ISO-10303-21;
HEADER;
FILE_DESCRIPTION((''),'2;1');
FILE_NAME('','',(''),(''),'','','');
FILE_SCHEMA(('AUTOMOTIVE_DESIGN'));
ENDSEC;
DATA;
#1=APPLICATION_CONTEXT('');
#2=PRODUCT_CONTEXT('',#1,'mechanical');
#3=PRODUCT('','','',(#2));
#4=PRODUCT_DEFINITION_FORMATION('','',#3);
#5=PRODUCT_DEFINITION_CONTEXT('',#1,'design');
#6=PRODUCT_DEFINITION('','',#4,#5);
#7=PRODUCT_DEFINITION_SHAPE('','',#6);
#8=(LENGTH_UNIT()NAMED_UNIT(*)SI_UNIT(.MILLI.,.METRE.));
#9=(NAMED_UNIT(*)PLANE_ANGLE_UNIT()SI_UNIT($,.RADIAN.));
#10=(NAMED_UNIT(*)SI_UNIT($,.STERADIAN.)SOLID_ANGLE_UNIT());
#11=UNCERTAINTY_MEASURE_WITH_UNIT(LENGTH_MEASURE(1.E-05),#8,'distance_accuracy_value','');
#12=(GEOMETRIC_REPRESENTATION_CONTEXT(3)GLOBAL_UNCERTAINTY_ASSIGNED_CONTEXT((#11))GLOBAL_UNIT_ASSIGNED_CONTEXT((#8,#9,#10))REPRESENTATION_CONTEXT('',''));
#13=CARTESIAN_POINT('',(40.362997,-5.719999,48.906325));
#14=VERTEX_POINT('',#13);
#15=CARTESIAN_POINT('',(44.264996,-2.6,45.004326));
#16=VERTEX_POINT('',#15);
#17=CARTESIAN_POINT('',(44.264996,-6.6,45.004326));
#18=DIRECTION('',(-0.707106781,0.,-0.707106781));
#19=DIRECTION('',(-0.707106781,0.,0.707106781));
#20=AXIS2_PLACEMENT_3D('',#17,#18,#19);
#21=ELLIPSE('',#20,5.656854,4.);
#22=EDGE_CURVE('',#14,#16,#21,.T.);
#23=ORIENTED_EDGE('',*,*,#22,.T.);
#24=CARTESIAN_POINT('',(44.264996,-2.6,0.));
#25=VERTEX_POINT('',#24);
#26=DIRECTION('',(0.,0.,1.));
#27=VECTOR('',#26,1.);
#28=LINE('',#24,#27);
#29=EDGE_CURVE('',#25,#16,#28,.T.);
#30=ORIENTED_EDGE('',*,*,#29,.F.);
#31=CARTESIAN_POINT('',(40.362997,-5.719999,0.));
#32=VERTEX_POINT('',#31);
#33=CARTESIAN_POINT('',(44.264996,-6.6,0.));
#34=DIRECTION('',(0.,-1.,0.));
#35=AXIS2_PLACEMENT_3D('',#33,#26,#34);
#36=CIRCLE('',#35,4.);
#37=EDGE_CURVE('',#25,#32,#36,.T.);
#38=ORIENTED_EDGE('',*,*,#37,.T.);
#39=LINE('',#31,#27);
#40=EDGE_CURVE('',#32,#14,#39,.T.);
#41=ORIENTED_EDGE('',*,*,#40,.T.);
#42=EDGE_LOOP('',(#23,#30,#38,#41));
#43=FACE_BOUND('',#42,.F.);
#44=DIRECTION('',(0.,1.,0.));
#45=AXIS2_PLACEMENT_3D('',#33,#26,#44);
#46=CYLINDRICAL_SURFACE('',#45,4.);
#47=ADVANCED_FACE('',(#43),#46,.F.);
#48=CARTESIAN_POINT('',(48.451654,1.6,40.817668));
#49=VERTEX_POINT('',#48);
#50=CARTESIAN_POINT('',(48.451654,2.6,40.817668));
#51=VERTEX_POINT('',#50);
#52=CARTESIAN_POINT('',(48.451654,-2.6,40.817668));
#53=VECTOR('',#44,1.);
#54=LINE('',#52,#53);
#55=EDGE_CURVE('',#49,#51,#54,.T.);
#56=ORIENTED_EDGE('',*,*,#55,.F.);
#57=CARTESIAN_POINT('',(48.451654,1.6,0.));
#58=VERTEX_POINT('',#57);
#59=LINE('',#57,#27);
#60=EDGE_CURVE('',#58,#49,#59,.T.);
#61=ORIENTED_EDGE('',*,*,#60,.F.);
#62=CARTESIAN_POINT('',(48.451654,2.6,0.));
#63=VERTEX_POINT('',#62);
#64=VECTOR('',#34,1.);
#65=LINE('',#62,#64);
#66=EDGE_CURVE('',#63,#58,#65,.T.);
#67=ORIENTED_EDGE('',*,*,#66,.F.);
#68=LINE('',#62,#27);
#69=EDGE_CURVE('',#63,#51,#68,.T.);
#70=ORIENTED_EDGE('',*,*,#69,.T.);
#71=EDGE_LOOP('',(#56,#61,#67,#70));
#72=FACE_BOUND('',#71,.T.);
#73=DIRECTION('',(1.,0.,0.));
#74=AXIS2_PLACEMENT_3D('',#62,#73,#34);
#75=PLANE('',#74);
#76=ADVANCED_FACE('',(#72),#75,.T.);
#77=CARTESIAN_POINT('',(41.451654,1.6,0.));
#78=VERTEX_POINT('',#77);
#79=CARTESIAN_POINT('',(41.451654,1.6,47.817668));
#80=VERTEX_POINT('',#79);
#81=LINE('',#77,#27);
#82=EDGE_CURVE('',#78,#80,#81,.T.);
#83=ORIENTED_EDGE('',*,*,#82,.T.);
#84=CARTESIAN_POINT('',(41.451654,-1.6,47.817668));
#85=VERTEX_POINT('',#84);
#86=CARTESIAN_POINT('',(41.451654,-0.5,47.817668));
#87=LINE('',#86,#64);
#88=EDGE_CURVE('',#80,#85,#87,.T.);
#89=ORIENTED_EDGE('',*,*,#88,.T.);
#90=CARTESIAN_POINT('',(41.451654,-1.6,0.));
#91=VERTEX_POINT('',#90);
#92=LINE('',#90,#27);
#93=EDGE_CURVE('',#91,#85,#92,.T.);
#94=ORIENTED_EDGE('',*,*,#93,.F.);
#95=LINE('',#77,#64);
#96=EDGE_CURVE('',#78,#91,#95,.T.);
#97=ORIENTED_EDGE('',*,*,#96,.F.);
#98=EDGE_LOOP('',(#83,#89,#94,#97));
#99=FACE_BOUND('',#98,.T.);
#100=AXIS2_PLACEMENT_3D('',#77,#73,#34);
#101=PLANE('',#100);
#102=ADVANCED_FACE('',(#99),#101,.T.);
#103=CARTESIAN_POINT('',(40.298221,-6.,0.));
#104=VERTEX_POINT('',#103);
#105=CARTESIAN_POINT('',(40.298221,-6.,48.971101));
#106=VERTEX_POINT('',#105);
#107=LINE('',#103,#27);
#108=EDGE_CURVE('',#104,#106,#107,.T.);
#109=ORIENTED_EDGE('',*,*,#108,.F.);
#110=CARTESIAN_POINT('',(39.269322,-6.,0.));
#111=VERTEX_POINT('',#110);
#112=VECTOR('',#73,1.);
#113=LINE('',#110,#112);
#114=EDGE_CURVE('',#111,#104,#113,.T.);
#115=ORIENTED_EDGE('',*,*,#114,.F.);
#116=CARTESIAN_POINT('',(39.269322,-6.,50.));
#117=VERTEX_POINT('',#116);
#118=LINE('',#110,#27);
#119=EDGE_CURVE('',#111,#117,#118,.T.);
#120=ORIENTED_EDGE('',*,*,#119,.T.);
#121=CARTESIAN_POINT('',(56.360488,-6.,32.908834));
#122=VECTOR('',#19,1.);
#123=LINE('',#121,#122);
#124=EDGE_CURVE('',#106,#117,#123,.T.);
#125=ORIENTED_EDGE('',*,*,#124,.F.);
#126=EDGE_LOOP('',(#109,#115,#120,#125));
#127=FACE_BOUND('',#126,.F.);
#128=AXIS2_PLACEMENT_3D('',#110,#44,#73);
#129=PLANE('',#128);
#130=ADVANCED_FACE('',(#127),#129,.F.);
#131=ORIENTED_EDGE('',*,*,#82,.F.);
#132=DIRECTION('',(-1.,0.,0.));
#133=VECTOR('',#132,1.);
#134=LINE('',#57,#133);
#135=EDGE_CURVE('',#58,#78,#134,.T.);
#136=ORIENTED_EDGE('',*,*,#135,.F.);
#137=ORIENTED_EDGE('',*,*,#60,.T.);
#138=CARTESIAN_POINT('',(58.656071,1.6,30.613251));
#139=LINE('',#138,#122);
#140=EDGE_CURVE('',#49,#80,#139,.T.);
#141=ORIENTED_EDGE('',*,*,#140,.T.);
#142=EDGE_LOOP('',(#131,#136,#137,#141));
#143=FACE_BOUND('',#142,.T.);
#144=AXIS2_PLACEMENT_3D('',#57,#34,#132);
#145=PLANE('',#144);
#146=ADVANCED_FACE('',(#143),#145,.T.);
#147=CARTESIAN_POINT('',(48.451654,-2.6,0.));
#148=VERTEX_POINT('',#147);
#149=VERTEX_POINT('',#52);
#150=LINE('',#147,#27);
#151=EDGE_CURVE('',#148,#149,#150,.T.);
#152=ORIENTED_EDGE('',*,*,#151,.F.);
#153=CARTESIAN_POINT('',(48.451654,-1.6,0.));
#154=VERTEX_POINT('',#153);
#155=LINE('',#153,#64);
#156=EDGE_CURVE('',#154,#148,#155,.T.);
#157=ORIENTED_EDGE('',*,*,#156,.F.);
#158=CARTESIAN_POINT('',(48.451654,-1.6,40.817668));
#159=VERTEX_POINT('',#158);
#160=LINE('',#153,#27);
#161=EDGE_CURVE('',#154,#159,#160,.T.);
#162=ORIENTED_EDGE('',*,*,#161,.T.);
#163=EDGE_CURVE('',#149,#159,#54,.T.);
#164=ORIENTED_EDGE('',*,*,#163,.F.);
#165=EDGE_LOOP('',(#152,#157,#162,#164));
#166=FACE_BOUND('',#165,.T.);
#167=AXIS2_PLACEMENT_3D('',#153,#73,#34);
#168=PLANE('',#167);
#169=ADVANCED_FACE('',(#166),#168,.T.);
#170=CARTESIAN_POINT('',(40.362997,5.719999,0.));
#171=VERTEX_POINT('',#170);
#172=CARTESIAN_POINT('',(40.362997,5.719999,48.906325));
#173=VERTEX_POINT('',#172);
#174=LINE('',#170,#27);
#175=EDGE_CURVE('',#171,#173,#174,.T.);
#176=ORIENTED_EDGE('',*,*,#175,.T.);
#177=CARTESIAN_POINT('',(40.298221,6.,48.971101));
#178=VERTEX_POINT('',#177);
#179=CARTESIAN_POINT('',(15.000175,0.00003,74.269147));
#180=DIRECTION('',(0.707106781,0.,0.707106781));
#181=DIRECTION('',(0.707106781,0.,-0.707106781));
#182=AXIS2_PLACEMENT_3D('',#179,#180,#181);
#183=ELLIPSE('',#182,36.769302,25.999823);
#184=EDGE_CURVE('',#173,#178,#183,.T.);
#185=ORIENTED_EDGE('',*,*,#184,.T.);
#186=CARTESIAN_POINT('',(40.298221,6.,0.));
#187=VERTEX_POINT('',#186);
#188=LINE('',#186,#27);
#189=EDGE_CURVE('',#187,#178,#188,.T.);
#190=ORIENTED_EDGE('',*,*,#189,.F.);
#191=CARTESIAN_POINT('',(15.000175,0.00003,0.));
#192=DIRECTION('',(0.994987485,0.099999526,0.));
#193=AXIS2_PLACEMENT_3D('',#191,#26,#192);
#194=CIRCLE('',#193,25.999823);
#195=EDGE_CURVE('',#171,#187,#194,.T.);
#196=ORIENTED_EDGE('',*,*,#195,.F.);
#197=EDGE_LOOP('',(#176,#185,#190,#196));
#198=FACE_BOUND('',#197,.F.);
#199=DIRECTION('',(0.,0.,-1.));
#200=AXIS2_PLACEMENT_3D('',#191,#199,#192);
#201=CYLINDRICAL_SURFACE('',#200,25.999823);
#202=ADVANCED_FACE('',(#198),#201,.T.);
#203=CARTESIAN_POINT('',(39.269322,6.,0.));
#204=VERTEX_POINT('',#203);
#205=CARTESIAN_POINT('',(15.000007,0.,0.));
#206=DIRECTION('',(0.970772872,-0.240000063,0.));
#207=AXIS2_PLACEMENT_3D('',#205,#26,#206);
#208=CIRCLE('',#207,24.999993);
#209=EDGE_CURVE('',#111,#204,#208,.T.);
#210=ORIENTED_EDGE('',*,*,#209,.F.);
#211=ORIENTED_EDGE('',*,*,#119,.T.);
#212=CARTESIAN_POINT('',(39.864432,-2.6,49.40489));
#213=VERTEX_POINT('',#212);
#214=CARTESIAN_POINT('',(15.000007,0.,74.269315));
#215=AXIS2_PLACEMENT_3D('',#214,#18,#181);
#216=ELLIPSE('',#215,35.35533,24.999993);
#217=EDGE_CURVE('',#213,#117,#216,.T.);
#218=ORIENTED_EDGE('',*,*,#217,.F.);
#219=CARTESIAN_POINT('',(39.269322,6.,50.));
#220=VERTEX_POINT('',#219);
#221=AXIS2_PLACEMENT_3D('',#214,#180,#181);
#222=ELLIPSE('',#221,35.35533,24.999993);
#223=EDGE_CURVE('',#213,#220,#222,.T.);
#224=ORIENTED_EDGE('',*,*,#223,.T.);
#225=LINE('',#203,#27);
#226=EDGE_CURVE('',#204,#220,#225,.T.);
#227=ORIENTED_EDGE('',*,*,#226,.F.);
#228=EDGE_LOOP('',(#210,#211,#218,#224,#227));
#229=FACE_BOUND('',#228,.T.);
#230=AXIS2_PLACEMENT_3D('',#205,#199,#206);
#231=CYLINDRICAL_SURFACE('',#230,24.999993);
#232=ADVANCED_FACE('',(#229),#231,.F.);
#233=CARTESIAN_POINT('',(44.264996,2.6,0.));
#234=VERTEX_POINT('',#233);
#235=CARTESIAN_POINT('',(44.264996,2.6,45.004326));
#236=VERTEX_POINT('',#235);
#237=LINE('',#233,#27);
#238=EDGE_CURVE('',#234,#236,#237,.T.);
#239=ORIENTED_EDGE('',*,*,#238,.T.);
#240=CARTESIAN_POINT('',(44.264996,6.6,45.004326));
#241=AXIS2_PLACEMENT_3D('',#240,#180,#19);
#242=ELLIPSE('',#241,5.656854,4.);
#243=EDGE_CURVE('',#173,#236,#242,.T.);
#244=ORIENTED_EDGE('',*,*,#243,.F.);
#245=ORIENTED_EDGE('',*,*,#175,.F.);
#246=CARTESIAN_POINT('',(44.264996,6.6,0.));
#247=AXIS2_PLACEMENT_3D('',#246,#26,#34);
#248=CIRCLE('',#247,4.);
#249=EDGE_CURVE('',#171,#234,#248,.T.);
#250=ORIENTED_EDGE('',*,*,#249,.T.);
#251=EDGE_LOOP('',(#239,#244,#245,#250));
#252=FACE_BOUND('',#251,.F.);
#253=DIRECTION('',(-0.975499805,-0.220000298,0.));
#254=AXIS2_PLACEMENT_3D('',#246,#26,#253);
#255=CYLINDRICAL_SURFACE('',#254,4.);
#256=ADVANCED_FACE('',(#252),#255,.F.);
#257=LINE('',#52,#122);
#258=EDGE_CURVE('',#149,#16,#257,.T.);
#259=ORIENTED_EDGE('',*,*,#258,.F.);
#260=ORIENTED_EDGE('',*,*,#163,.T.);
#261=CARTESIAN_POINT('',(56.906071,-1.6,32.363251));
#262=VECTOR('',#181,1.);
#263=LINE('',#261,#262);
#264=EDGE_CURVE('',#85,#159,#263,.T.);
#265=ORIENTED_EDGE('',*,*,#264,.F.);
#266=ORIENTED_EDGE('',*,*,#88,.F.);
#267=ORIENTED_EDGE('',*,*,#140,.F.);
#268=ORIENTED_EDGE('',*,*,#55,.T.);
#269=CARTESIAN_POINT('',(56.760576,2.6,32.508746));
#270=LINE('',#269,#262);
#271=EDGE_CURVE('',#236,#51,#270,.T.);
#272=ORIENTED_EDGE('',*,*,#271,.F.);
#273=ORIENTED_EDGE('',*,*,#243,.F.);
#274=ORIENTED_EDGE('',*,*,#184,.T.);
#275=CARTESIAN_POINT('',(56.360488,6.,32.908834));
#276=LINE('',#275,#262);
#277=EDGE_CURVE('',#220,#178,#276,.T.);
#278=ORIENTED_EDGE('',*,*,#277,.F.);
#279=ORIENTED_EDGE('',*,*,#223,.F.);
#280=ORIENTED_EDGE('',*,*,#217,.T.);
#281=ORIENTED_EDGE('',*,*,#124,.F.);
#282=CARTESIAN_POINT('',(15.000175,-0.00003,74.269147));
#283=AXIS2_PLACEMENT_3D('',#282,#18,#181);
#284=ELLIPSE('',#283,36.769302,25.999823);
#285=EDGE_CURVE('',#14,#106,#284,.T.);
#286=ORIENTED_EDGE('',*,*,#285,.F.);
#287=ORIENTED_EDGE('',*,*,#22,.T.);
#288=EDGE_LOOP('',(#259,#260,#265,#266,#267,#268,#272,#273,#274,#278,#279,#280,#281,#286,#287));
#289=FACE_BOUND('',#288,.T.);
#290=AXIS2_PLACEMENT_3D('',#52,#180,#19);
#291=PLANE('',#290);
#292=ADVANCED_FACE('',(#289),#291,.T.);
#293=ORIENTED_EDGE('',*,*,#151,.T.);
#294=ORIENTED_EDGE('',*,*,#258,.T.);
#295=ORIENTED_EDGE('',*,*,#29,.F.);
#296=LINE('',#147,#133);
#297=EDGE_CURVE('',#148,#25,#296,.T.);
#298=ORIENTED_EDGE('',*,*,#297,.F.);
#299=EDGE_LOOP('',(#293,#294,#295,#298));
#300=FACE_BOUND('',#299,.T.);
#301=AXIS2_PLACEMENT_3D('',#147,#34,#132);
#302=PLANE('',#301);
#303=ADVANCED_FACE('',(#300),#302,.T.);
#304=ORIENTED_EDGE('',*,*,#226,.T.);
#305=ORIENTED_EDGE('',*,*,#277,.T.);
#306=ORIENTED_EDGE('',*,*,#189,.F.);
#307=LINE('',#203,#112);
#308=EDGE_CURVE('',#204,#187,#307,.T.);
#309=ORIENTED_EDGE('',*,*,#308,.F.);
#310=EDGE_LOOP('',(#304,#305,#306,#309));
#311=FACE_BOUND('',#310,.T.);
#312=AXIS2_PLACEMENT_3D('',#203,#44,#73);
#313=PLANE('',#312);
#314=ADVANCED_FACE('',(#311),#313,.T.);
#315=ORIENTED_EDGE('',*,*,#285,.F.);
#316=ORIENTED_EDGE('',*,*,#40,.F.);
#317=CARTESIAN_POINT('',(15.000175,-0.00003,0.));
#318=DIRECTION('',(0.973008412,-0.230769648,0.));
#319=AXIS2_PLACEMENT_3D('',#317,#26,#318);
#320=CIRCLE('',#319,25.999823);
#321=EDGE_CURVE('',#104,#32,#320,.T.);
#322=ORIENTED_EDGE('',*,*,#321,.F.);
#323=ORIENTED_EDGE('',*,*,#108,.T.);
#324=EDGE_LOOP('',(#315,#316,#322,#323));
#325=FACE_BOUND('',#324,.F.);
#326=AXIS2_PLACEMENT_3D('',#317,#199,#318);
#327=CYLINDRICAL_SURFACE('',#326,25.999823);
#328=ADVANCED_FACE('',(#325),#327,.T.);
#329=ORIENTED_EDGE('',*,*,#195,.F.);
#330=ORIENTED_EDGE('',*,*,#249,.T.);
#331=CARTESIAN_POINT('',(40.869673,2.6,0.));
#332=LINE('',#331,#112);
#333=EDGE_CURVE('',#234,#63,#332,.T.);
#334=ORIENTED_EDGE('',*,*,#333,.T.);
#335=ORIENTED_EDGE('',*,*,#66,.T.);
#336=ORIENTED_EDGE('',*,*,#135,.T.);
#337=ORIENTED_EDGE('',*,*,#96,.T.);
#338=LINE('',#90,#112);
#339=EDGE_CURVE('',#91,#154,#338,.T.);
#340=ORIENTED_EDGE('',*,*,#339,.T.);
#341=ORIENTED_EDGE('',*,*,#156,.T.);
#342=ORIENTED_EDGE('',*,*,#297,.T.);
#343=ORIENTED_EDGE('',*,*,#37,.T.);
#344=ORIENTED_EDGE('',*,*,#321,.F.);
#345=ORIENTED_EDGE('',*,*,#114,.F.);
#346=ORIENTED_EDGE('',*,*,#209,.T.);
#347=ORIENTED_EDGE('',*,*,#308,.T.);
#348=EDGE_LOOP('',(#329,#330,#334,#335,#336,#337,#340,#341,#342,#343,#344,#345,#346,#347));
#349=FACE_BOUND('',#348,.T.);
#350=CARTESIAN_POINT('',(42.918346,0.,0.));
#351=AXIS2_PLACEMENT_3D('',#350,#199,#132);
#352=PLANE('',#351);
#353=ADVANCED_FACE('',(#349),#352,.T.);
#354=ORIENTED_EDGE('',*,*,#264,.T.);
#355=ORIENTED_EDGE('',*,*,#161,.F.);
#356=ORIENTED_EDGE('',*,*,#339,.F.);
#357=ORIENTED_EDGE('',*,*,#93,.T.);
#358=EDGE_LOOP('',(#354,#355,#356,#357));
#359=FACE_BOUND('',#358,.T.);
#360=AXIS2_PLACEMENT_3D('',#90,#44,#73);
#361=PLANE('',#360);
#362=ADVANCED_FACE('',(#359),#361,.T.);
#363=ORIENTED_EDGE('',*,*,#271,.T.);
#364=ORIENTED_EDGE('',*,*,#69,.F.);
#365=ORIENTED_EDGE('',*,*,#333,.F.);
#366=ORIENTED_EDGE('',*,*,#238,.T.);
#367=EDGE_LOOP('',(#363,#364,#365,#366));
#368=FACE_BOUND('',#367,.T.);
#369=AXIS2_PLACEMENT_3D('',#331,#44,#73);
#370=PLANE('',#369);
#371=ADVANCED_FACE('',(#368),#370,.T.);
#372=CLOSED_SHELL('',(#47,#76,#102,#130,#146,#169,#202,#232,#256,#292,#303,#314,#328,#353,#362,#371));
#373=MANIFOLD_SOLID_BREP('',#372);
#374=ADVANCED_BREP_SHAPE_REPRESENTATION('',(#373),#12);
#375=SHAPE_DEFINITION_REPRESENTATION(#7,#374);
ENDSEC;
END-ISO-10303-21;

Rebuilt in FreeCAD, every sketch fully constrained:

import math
import FreeCAD as App
import Part
import Sketcher
from FreeCAD import Vector


def edges_at(feature, points):
    """Names of the edges that pass closest to the given points."""
    edges = feature.Shape.Edges
    near = lambda p: min(range(len(edges)), key=lambda i: edges[i].distToShape(Part.Vertex(*p))[0])
    return sorted({f"Edge{near(p) + 1}" for p in points})


def add_polygon(sketch, points):
    """Adds a closed chain of lines whose ends are joined by coincident constraints."""
    first, n = sketch.GeometryCount, len(points)
    for a, b in zip(points, points[1:] + points[:1]):
        sketch.addGeometry(Part.LineSegment(App.Vector(*a, 0), App.Vector(*b, 0)), False)
    for i in range(n):
        sketch.addConstraint(Sketcher.Constraint("Coincident", first + i, 2, first + (i + 1) % n, 1))

doc = App.newDocument("Part")
body = doc.addObject("PartDesign::Body", "Body")

# Sketch on XY plane
sketch1 = doc.addObject("Sketcher::SketchObject", "Sketch")
body.addObject(sketch1)
sketch1.AttachmentSupport = (doc.XY_Plane, [""])
sketch1.MapMode = "FlatFace"
sketch1.addGeometry(Part.ArcOfCircle(Part.Circle(Vector(0.000007, 0, 0), Vector(0, 0, 1), 24.999993), math.radians(-13.886544), math.radians(13.886544)), False)
sketch1.addGeometry(Part.LineSegment(Vector(24.269322, -6, 0), Vector(25.298221, -6, 0)), False)
sketch1.addGeometry(Part.ArcOfCircle(Part.Circle(Vector(0.000175, -0.00003, 0), Vector(0, 0, 1), 25.999823), math.radians(-13.342388), math.radians(-5.739143)), False)
sketch1.addGeometry(Part.LineSegment(Vector(25.869673, -2.6, 0), Vector(33.451654, -2.6, 0)), False)
sketch1.addGeometry(Part.LineSegment(Vector(33.451654, -2.6, 0), Vector(33.451654, -1.6, 0)), False)
sketch1.addGeometry(Part.LineSegment(Vector(33.451654, -1.6, 0), Vector(26.451654, -1.6, 0)), False)
sketch1.addGeometry(Part.LineSegment(Vector(26.451654, -1.6, 0), Vector(26.451654, 1.6, 0)), False)
sketch1.addGeometry(Part.LineSegment(Vector(26.451654, 1.6, 0), Vector(33.451654, 1.6, 0)), False)
sketch1.addGeometry(Part.LineSegment(Vector(33.451654, 1.6, 0), Vector(33.451654, 2.6, 0)), False)
sketch1.addGeometry(Part.LineSegment(Vector(33.451654, 2.6, 0), Vector(25.869673, 2.6, 0)), False)
sketch1.addGeometry(Part.ArcOfCircle(Part.Circle(Vector(0.000175, 0.00003, 0), Vector(0, 0, 1), 25.999823), math.radians(5.739143), math.radians(13.342388)), False)
sketch1.addGeometry(Part.LineSegment(Vector(25.298221, 6, 0), Vector(24.269322, 6, 0)), False)
sketch1.addConstraint(Sketcher.Constraint("Coincident", 0, 1, 1, 1))
sketch1.addConstraint(Sketcher.Constraint("Coincident", 1, 2, 2, 1))
sketch1.addConstraint(Sketcher.Constraint("Coincident", 2, 2, 3, 1))
sketch1.addConstraint(Sketcher.Constraint("Coincident", 3, 2, 4, 1))
sketch1.addConstraint(Sketcher.Constraint("Coincident", 4, 2, 5, 1))
sketch1.addConstraint(Sketcher.Constraint("Coincident", 5, 2, 6, 1))
sketch1.addConstraint(Sketcher.Constraint("Coincident", 6, 2, 7, 1))
sketch1.addConstraint(Sketcher.Constraint("Coincident", 7, 2, 8, 1))
sketch1.addConstraint(Sketcher.Constraint("Coincident", 8, 2, 9, 1))
sketch1.addConstraint(Sketcher.Constraint("Coincident", 9, 2, 10, 1))
sketch1.addConstraint(Sketcher.Constraint("Coincident", 10, 2, 11, 1))
sketch1.addConstraint(Sketcher.Constraint("Coincident", 11, 2, 0, 2))
sketch1.addConstraint(Sketcher.Constraint("Horizontal", 1))
sketch1.addConstraint(Sketcher.Constraint("Horizontal", 3))
sketch1.addConstraint(Sketcher.Constraint("Vertical", 4))
sketch1.addConstraint(Sketcher.Constraint("Horizontal", 5))
sketch1.addConstraint(Sketcher.Constraint("Vertical", 6))
sketch1.addConstraint(Sketcher.Constraint("Horizontal", 7))
sketch1.addConstraint(Sketcher.Constraint("Vertical", 8))
sketch1.addConstraint(Sketcher.Constraint("Horizontal", 9))
sketch1.addConstraint(Sketcher.Constraint("Horizontal", 11))
sketch1.addConstraint(Sketcher.Constraint("Coincident", 0, 3, -1, 1))
sketch1.addConstraint(Sketcher.Constraint("Equal", 2, 10))
sketch1.addConstraint(Sketcher.Constraint("Symmetric", 2, 3, 10, 3, -1))
sketch1.addConstraint(Sketcher.Constraint("Symmetric", 4, 2, 7, 2, -1))
sketch1.addConstraint(Sketcher.Constraint("Vertical", 2, 2, 9, 2))
sketch1.addConstraint(Sketcher.Constraint("Vertical", 1, 2, 10, 2))
sketch1.addConstraint(Sketcher.Constraint("DistanceX", 5, 2, 5, 1, 7.0))
sketch1.addConstraint(Sketcher.Constraint("DistanceY", 4, 1, 4, 2, 1.0))
sketch1.addConstraint(Sketcher.Constraint("DistanceY", 6, 1, 6, 2, 3.2))
sketch1.addConstraint(Sketcher.Constraint("DistanceY", 0, 1, -1, 1, 6.0))
sketch1.addConstraint(Sketcher.Constraint("DistanceX", 1, 1, 1, 2, 1.028899))
sketch1.addConstraint(Sketcher.Constraint("Radius", 0, 24.999993))
sketch1.addConstraint(Sketcher.Constraint("Radius", 2, 25.999823))
sketch1.addConstraint(Sketcher.Constraint("DistanceX", 3, 1, 3, 2, 7.581981))
sketch1.addConstraint(Sketcher.Constraint("DistanceX", 2, 3, 2, 2, 25.869498))
pad1 = doc.addObject("PartDesign::Pad", "Pad")
body.addObject(pad1)
pad1.Profile = sketch1
pad1.Length = 50
doc.recompute()

fillet = doc.addObject("PartDesign::Fillet", "Fillet")
body.addObject(fillet)
fillet.Base = (pad1, edges_at(pad1, [(25.87, -2.6, 25), (25.87, 2.6, 25)]))
fillet.Radius = 4

# Sketch on XZ plane
sketch2 = doc.addObject("Sketcher::SketchObject", "Sketch001")
body.addObject(sketch2)
sketch2.AttachmentSupport = (doc.XZ_Plane, [""])
sketch2.MapMode = "FlatFace"
sketch2.AttachmentOffset = App.Placement(Vector(0, 0, 2.6), App.Rotation())
add_polygon(sketch2, [(33, 41), (33, 50), (24, 50)])  # lines 0-2
sketch2.addConstraint(Sketcher.Constraint("Vertical", 0))
sketch2.addConstraint(Sketcher.Constraint("Horizontal", 1))
sketch2.addConstraint(Sketcher.Constraint("Equal", 1, 0))
sketch2.addConstraint(Sketcher.Constraint("DistanceY", -1, 1, 0, 2, 50.0))
sketch2.addConstraint(Sketcher.Constraint("DistanceX", 1, 2, 1, 1, 9.182332))
sketch2.addConstraint(Sketcher.Constraint("DistanceX", -1, 1, 1, 2, 24.269322))
pocket1 = doc.addObject("PartDesign::Pocket", "Pocket")
body.addObject(pocket1)
pocket1.Profile = sketch2
pocket1.Type = "ThroughAll"
pocket1.Midplane = True
body2 = doc.addObject("PartDesign::Body", "Body001")
doc.recompute()

body.Placement = App.Placement(Vector(15, 0, 0), App.Rotation(Vector(0, 0, 1), 0))
boolean = doc.addObject("PartDesign::Boolean", "Boolean")
body2.addObject(boolean)
boolean.Type = "Fuse"
boolean.addObjects([body])

doc.recompute()
